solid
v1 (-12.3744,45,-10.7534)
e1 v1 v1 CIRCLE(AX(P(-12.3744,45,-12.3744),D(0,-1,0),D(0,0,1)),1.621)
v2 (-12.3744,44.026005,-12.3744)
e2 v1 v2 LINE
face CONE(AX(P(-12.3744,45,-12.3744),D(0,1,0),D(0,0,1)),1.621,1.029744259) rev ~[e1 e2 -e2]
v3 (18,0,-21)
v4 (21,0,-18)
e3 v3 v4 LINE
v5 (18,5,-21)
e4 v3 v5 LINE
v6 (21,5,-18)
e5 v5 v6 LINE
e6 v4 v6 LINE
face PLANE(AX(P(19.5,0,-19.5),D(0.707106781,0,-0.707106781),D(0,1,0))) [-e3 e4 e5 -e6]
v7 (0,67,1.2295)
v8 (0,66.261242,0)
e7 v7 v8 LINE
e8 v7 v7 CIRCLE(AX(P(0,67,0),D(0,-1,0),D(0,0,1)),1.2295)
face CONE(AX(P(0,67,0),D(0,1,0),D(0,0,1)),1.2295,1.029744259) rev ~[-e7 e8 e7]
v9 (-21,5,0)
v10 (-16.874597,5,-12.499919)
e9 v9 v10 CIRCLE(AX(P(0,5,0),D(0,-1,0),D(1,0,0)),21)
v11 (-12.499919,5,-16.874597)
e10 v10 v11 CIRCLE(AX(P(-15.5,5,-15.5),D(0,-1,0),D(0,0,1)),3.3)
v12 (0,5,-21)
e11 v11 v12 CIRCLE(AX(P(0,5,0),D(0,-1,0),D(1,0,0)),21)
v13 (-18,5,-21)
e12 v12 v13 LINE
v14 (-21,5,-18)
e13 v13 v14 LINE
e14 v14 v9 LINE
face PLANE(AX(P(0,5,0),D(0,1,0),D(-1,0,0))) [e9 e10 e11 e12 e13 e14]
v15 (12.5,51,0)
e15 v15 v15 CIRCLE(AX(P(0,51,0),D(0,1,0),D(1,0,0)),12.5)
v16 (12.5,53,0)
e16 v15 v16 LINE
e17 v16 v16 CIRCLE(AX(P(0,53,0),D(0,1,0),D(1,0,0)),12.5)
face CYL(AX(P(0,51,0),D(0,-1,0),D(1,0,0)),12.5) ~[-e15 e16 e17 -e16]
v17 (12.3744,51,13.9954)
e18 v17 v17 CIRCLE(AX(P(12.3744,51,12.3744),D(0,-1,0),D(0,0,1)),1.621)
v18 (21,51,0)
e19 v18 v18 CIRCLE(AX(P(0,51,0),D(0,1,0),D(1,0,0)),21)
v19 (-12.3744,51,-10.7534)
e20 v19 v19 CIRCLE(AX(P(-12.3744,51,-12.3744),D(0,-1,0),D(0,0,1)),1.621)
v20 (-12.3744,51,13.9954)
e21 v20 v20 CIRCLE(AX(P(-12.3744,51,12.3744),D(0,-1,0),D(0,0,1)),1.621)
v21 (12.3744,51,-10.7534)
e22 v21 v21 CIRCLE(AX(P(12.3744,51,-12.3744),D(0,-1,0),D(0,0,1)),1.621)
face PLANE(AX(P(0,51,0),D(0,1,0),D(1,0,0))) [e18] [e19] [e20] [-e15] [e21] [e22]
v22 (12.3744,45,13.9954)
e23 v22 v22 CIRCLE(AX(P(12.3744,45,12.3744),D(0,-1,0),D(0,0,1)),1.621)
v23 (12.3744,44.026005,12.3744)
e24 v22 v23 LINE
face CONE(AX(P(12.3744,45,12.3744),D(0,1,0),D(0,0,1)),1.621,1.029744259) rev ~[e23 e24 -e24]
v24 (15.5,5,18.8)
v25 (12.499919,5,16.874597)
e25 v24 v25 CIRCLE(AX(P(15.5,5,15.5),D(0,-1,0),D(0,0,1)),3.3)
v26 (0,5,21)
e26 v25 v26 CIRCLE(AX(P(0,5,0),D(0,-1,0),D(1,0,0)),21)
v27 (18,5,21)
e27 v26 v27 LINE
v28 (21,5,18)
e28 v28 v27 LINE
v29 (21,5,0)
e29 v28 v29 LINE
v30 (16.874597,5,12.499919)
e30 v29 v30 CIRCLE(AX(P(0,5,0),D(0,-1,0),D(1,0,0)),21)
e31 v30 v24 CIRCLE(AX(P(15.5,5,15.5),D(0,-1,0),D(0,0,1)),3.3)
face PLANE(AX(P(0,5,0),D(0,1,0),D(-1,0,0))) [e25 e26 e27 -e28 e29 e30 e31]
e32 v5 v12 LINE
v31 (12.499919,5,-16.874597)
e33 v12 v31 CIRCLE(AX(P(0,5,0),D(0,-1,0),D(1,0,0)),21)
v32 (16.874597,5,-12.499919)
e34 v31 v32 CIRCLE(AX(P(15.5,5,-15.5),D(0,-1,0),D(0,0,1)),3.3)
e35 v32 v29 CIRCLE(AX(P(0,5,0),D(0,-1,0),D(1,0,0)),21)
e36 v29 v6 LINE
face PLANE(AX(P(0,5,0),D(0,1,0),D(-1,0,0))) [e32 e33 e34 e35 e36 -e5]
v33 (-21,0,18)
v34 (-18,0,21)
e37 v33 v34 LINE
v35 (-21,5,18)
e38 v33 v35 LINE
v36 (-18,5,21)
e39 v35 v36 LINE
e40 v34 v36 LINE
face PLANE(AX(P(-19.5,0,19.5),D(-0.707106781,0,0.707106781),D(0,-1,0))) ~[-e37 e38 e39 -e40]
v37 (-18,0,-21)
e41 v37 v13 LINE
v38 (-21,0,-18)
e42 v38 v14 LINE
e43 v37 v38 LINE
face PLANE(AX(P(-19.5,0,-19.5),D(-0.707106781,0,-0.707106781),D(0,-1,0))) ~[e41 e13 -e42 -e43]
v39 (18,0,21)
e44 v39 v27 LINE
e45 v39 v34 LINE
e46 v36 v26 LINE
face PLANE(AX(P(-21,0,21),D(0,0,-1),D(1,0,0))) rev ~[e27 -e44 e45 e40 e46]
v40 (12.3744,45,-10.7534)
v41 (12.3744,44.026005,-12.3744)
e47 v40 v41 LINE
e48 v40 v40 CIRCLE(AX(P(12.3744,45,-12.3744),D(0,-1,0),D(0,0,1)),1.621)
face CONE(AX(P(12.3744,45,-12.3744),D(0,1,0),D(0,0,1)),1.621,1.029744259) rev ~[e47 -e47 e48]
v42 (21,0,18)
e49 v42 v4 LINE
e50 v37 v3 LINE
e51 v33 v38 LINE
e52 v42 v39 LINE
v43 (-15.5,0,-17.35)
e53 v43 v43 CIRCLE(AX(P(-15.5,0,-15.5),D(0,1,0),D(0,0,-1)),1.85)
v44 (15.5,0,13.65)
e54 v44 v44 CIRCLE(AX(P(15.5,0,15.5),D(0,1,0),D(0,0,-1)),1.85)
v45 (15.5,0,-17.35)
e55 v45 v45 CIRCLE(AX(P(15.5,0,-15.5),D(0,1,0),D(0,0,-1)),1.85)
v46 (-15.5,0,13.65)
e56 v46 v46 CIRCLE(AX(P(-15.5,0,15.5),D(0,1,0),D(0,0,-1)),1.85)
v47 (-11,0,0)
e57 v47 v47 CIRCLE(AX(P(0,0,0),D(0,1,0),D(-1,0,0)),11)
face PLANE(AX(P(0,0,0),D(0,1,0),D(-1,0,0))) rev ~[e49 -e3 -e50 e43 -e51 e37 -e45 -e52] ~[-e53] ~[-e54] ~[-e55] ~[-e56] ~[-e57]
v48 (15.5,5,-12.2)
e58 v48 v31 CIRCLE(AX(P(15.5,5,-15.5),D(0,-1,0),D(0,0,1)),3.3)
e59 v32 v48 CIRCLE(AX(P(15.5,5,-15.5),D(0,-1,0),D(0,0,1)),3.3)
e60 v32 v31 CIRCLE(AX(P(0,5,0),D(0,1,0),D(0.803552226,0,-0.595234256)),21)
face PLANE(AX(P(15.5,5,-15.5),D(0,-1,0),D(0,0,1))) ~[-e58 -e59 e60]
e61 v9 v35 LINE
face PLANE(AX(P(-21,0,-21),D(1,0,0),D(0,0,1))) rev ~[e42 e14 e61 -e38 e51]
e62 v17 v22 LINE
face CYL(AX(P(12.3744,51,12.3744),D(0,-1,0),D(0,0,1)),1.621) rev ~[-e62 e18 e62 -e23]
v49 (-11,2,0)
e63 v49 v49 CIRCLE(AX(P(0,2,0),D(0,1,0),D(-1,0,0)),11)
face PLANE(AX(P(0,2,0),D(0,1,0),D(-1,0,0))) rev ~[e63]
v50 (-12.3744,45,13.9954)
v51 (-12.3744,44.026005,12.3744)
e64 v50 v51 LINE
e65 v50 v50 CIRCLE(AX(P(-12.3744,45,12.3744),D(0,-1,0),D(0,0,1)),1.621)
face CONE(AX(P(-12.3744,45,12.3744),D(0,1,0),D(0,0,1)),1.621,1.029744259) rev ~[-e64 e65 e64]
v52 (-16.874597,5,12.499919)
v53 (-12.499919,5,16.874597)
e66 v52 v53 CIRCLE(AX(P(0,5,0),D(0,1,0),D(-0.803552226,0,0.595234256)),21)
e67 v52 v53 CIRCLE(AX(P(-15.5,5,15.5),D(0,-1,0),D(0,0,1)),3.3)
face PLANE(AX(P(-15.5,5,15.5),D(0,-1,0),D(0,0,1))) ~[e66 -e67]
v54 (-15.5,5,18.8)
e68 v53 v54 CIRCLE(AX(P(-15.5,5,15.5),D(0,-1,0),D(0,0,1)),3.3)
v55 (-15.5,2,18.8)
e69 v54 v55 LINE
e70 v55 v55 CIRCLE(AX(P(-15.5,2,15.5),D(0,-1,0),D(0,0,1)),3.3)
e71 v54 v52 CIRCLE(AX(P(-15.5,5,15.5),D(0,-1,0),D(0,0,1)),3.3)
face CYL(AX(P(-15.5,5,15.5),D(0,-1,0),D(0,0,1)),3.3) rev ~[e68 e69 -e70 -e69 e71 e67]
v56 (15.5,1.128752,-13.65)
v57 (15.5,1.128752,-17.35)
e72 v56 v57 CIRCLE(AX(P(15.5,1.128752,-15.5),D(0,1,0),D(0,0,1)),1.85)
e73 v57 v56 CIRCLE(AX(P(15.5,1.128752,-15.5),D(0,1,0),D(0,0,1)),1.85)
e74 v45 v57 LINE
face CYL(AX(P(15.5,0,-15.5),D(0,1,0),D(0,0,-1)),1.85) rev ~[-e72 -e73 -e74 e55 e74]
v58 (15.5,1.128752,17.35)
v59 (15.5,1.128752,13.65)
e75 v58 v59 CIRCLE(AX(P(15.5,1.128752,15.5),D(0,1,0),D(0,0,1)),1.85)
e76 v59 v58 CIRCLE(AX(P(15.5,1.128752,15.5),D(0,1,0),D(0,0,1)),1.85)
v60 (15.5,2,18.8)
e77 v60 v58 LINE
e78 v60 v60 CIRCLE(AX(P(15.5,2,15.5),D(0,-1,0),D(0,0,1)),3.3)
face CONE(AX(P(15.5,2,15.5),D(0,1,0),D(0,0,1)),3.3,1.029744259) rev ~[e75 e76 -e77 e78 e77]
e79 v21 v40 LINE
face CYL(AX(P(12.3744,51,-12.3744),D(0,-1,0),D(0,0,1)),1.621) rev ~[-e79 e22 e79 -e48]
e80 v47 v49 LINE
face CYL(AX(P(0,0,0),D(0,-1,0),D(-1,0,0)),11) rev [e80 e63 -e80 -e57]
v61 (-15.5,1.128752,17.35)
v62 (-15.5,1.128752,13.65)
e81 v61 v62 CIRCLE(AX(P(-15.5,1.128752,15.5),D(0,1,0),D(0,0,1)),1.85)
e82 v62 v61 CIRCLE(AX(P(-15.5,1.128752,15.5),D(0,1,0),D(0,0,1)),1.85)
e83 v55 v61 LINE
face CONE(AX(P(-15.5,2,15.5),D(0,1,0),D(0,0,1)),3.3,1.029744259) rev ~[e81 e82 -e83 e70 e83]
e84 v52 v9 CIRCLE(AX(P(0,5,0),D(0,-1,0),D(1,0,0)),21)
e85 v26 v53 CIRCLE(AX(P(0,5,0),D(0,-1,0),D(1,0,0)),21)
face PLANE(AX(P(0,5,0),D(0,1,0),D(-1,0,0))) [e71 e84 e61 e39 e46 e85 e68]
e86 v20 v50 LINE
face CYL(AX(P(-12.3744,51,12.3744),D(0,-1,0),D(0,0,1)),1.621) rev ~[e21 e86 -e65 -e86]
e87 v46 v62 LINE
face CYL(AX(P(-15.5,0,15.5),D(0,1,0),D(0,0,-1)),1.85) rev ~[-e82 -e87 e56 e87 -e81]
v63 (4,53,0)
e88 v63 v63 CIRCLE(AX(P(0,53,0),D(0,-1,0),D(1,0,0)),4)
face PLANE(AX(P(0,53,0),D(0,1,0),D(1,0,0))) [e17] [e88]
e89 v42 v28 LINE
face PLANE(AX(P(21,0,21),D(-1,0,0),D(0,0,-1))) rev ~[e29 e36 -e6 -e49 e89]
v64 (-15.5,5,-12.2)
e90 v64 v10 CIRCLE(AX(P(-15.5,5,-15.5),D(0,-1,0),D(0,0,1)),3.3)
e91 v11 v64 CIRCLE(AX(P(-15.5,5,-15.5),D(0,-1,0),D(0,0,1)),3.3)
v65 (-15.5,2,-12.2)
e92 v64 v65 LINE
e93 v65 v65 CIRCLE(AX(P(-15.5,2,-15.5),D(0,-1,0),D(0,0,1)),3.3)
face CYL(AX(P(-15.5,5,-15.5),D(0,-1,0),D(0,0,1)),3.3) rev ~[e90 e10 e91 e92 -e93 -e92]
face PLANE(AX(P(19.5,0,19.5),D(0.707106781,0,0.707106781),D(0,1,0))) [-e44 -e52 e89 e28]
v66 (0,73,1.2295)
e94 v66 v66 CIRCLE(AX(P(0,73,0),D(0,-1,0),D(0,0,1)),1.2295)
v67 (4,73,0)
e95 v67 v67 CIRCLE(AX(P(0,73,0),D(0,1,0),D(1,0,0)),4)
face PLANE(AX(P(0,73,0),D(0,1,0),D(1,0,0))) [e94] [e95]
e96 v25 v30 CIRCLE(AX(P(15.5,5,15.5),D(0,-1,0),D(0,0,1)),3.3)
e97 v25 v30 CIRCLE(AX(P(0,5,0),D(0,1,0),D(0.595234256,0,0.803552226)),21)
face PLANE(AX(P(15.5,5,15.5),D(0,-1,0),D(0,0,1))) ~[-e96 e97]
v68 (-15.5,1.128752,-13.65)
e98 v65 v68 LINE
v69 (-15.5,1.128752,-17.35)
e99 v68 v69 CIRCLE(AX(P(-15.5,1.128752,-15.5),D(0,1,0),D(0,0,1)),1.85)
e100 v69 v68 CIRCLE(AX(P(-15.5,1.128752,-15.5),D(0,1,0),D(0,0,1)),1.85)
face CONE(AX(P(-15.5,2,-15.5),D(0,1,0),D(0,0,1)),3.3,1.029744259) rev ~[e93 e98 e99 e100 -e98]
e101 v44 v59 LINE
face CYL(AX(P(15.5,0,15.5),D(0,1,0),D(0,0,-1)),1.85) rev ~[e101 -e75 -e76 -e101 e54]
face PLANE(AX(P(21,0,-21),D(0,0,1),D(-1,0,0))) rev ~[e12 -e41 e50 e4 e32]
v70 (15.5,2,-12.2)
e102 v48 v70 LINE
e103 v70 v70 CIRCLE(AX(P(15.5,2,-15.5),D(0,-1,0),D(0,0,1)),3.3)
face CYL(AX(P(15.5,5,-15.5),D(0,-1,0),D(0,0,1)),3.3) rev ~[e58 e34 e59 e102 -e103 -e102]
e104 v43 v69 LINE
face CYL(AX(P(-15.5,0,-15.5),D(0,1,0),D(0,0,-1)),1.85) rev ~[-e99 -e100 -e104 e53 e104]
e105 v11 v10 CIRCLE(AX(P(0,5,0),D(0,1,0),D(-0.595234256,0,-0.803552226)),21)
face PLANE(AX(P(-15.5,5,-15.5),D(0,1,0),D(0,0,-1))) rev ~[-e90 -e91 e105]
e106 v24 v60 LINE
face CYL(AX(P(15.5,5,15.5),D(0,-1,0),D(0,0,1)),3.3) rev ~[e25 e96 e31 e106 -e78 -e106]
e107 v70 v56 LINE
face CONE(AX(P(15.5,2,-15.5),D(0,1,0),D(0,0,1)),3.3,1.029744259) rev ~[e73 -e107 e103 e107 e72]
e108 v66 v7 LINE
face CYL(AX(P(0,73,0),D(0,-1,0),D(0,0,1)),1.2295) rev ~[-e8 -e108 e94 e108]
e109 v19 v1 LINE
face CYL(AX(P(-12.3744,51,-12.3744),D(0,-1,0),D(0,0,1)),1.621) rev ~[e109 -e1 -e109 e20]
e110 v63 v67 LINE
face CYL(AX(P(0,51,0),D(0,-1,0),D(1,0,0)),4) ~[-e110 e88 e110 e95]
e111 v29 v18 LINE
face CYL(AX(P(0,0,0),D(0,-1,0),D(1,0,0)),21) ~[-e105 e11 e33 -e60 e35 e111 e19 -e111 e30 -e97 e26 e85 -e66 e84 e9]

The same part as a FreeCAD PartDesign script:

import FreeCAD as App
import Part
import Sketcher


def edges_at(feature, points):
    """Names of the edges that pass closest to the given points."""
    edges = feature.Shape.Edges
    near = lambda p: min(range(len(edges)), key=lambda i: edges[i].distToShape(Part.Vertex(*p))[0])
    return sorted({f"Edge{near(p) + 1}" for p in points})

doc = App.newDocument("Part")
body = doc.addObject("PartDesign::Body", "Body")

sketch1 = body.newObject("Sketcher::SketchObject", "Sketch")
sketch1.AttachmentSupport = (doc.getObject("XZ_Plane"), [""])
sketch1.MapMode = "FlatFace"
sketch1.addGeometry([
    Part.LineSegment(App.Vector(21, 21, 0), App.Vector(21, -21, 0)),
    Part.LineSegment(App.Vector(21, -21, 0), App.Vector(-21, -21, 0)),
    Part.LineSegment(App.Vector(-21, -21, 0), App.Vector(-21, 21, 0)),
    Part.LineSegment(App.Vector(-21, 21, 0), App.Vector(21, 21, 0)),
], False)
sketch1.addConstraint([
    Sketcher.Constraint("Coincident", 0, 2, 1, 1),
    Sketcher.Constraint("Coincident", 1, 2, 2, 1),
    Sketcher.Constraint("Coincident", 2, 2, 3, 1),
    Sketcher.Constraint("Coincident", 3, 2, 0, 1),
    Sketcher.Constraint("Vertical", 0),
    Sketcher.Constraint("Horizontal", 1),
    Sketcher.Constraint("Vertical", 2),
    Sketcher.Constraint("Horizontal", 3),
    Sketcher.Constraint("Symmetric", 0, 2, 2, 2, -1, 1),
    Sketcher.Constraint("Equal", 3, 0),
    Sketcher.Constraint("DistanceX", 1, 2, 1, 1, 42.0),
])
pad1 = body.newObject("PartDesign::Pad", "Pad")
pad1.Profile = sketch1
pad1.Length = 5
pad1.Reversed = True

sketch2 = body.newObject("Sketcher::SketchObject", "Sketch001")
sketch2.AttachmentSupport = (doc.getObject("XZ_Plane"), [""])
sketch2.MapMode = "FlatFace"
sketch2.addGeometry(Part.Circle(App.Vector(0, 0, 0), App.Vector(0, 0, 1), 21), False)
sketch2.addConstraint([
    Sketcher.Constraint("Coincident", 0, 3, -1, 1),
    Sketcher.Constraint("Diameter", 0, 42.0),
])
pad2 = body.newObject("PartDesign::Pad", "Pad001")
pad2.Profile = sketch2
pad2.Length = 51
pad2.Reversed = True

sketch3 = body.newObject("Sketcher::SketchObject", "Sketch002")
sketch3.AttachmentSupport = (doc.getObject("XZ_Plane"), [""])
sketch3.MapMode = "FlatFace"
sketch3.AttachmentOffset = App.Placement(App.Vector(0, 0, -51), App.Rotation())
sketch3.addGeometry(Part.Circle(App.Vector(0, 0, 0), App.Vector(0, 0, 1), 12), False)
sketch3.addConstraint([
    Sketcher.Constraint("Coincident", 0, 3, -1, 1),
    Sketcher.Constraint("Diameter", 0, 25.0),
])
pad3 = body.newObject("PartDesign::Pad", "Pad002")
pad3.Profile = sketch3
pad3.Length = 2
pad3.Reversed = True

sketch4 = body.newObject("Sketcher::SketchObject", "Sketch003")
sketch4.AttachmentSupport = (doc.getObject("XZ_Plane"), [""])
sketch4.MapMode = "FlatFace"
sketch4.AttachmentOffset = App.Placement(App.Vector(0, 0, -51), App.Rotation())
sketch4.addGeometry(Part.Circle(App.Vector(0, 0, 0), App.Vector(0, 0, 1), 4), False)
sketch4.addConstraint([
    Sketcher.Constraint("Coincident", 0, 3, -1, 1),
    Sketcher.Constraint("Diameter", 0, 8.0),
])
pad4 = body.newObject("PartDesign::Pad", "Pad003")
pad4.Profile = sketch4
pad4.Length = 22
pad4.Reversed = True

sketch5 = body.newObject("Sketcher::SketchObject", "Sketch004")
sketch5.AttachmentSupport = (doc.getObject("XZ_Plane"), [""])
sketch5.MapMode = "FlatFace"
sketch5.AttachmentOffset = App.Placement(App.Vector(0, 0, -51), App.Rotation())
sketch5.addGeometry([
    Part.Circle(App.Vector(12.4, -12.4, 0), App.Vector(0, 0, 1), 1.6),
    Part.Circle(App.Vector(-12.4, -12.4, 0), App.Vector(0, 0, 1), 1.6),
    Part.Circle(App.Vector(-12.4, 12.4, 0), App.Vector(0, 0, 1), 1.6),
    Part.Circle(App.Vector(12.4, 12.4, 0), App.Vector(0, 0, 1), 1.6),
], False)
sketch5.addConstraint([
    Sketcher.Constraint("Equal", 0, 1),
    Sketcher.Constraint("Equal", 1, 2),
    Sketcher.Constraint("Equal", 2, 3),
    Sketcher.Constraint("Symmetric", 0, 3, 2, 3, -1, 1),
    Sketcher.Constraint("Symmetric", 1, 3, 3, 3, -1, 1),
    Sketcher.Constraint("Symmetric", 0, 3, 1, 3, -2),
    Sketcher.Constraint("Diameter", 0, 3.242),
    Sketcher.Constraint("DistanceX", -1, 1, 0, 3, 12.3744),
    Sketcher.Constraint("DistanceY", 0, 3, -1, 1, 12.3744),
])
doc.recompute()
hole = body.newObject("PartDesign::Hole", "Hole")
hole.Profile = sketch5
hole.ThreadType = "None"
hole.Diameter = 3.242
hole.DepthType = "Dimension"
hole.Depth = 6
hole.DrillPoint = "Angled"
hole.DrillPointAngle = 118
hole.Reversed = True

sketch6 = body.newObject("Sketcher::SketchObject", "Sketch005")
sketch6.AttachmentSupport = (doc.getObject("XZ_Plane"), [""])
sketch6.MapMode = "FlatFace"
sketch6.AttachmentOffset = App.Placement(App.Vector(0, 0, -73), App.Rotation())
sketch6.addGeometry(Part.Circle(App.Vector(0, 0, 0), App.Vector(0, 0, 1), 1.2), False)
sketch6.addConstraint([
    Sketcher.Constraint("Coincident", 0, 3, -1, 1),
    Sketcher.Constraint("Diameter", 0, 2.459),
])
doc.recompute()
hole2 = body.newObject("PartDesign::Hole", "Hole001")
hole2.Profile = sketch6
hole2.ThreadType = "None"
hole2.Diameter = 2.459
hole2.DepthType = "Dimension"
hole2.Depth = 6
hole2.DrillPoint = "Angled"
hole2.DrillPointAngle = 118
hole2.Reversed = True
doc.recompute()

chamfer = body.newObject("PartDesign::Chamfer", "Chamfer")
chamfer.Base = (hole2, edges_at(hole2, [
    (21, 2.5, -21),
    (-21, 2.5, -21),
    (21, 2.5, 21),
    (-21, 2.5, 21),
]))
chamfer.Size = 3

sketch7 = body.newObject("Sketcher::SketchObject", "Sketch006")
sketch7.AttachmentSupport = (doc.getObject("XZ_Plane"), [""])
sketch7.MapMode = "FlatFace"
sketch7.addGeometry(Part.Circle(App.Vector(0, 0, 0), App.Vector(0, 0, 1), 11), False)
sketch7.addConstraint([
    Sketcher.Constraint("Coincident", 0, 3, -1, 1),
    Sketcher.Constraint("Diameter", 0, 22.0),
])
pocket1 = body.newObject("PartDesign::Pocket", "Pocket")
pocket1.Profile = sketch7
pocket1.Length = 2

sketch8 = body.newObject("Sketcher::SketchObject", "Sketch007")
sketch8.AttachmentSupport = (doc.getObject("XZ_Plane"), [""])
sketch8.MapMode = "FlatFace"
sketch8.addGeometry([
    Part.Circle(App.Vector(15.5, 15.5, 0), App.Vector(0, 0, 1), 1.9),
    Part.Circle(App.Vector(-15.5, 15.5, 0), App.Vector(0, 0, 1), 1.9),
    Part.Circle(App.Vector(-15.5, -15.5, 0), App.Vector(0, 0, 1), 1.9),
    Part.Circle(App.Vector(15.5, -15.5, 0), App.Vector(0, 0, 1), 1.9),
], False)
sketch8.addConstraint([
    Sketcher.Constraint("Equal", 0, 1),
    Sketcher.Constraint("Equal", 1, 2),
    Sketcher.Constraint("Equal", 2, 3),
    Sketcher.Constraint("Symmetric", 0, 3, 2, 3, -1, 1),
    Sketcher.Constraint("Symmetric", 1, 3, 3, 3, -1, 1),
    Sketcher.Constraint("Symmetric", 0, 3, 1, 3, -2),
    Sketcher.Constraint("Diameter", 0, 3.7),
    Sketcher.Constraint("DistanceX", 1, 3, 0, 3, 31.0),
    Sketcher.Constraint("DistanceY", 2, 3, 1, 3, 31.0),
])
doc.recompute()
hole3 = body.newObject("PartDesign::Hole", "Hole002")
hole3.Profile = sketch8
hole3.ThreadType = "None"
hole3.Diameter = 3.7
hole3.DepthType = "Dimension"
hole3.Depth = 5
hole3.DrillPoint = "Flat"

sketch9 = body.newObject("Sketcher::SketchObject", "Sketch008")
sketch9.AttachmentSupport = (doc.getObject("XZ_Plane"), [""])
sketch9.MapMode = "FlatFace"
sketch9.AttachmentOffset = App.Placement(App.Vector(0, 0, -5), App.Rotation())
sketch9.addGeometry([
    Part.Circle(App.Vector(-15.5, 15.5, 0), App.Vector(0, 0, 1), 3.3),
    Part.Circle(App.Vector(-15.5, -15.5, 0), App.Vector(0, 0, 1), 3.3),
    Part.Circle(App.Vector(15.5, -15.5, 0), App.Vector(0, 0, 1), 3.3),
    Part.Circle(App.Vector(15.5, 15.5, 0), App.Vector(0, 0, 1), 3.3),
], False)
sketch9.addConstraint([
    Sketcher.Constraint("Equal", 0, 1),
    Sketcher.Constraint("Equal", 1, 2),
    Sketcher.Constraint("Equal", 2, 3),
    Sketcher.Constraint("Symmetric", 0, 3, 2, 3, -1, 1),
    Sketcher.Constraint("Symmetric", 1, 3, 3, 3, -1, 1),
    Sketcher.Constraint("Symmetric", 1, 3, 2, 3, -2),
    Sketcher.Constraint("Diameter", 0, 6.6),
    Sketcher.Constraint("DistanceY", 1, 3, 0, 3, 31.0),
    Sketcher.Constraint("DistanceX", 1, 3, 2, 3, 31.0),
])
doc.recompute()
hole4 = body.newObject("PartDesign::Hole", "Hole003")
hole4.Profile = sketch9
hole4.ThreadType = "None"
hole4.Diameter = 6.6
hole4.DepthType = "Dimension"
hole4.Depth = 3
hole4.DrillPoint = "Angled"
hole4.DrillPointAngle = 118
hole4.Reversed = True

doc.recompute()
